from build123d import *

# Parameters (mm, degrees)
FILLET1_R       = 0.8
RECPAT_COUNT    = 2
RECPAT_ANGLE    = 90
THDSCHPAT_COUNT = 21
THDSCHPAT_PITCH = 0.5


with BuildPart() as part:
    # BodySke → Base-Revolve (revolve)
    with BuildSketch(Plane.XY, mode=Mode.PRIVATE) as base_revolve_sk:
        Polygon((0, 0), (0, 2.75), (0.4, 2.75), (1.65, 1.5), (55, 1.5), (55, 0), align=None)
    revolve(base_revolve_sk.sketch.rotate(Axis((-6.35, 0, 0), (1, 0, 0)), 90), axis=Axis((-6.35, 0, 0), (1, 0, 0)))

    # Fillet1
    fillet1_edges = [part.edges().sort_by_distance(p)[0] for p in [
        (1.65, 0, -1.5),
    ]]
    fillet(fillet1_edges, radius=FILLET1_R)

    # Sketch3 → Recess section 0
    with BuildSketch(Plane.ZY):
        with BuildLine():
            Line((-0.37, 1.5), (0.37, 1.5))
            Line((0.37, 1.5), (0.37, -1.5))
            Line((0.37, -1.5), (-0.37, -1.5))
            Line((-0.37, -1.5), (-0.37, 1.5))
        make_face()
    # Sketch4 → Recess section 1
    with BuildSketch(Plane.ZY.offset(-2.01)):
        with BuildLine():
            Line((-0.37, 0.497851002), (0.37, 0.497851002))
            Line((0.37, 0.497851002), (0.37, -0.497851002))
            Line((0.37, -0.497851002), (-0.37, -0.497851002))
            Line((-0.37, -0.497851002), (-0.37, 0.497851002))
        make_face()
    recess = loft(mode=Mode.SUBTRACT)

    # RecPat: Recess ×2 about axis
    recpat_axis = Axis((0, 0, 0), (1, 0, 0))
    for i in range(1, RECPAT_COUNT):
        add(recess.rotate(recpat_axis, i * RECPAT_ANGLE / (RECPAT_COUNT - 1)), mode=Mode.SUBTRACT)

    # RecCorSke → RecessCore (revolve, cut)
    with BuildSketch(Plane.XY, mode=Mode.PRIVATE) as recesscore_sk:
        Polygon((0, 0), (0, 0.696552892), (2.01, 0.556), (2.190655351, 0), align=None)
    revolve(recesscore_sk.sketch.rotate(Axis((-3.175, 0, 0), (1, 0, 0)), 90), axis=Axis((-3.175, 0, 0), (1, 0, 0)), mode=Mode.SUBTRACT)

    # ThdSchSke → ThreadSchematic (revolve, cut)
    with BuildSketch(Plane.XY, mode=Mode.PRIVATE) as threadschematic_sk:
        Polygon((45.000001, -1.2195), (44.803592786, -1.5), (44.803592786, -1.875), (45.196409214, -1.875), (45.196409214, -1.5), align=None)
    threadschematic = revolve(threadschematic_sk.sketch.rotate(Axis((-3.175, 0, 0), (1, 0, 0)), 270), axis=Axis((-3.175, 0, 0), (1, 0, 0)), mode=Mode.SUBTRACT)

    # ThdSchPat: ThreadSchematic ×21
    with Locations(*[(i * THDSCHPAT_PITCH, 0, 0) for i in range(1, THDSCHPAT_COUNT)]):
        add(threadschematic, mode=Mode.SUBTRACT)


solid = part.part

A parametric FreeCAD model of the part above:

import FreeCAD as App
import Part
import Sketcher
from FreeCAD import Vector
Q = App.Units.Quantity


def edges_at(feature, points):
    """Names of the edges that pass closest to the given points."""
    edges = feature.Shape.Edges
    near = lambda p: min(range(len(edges)), key=lambda i: edges[i].distToShape(Part.Vertex(*p))[0])
    return sorted({f"Edge{near(p) + 1}" for p in points})

doc = App.newDocument("Part")
params = doc.addObject("Spreadsheet::Sheet", "Params")
for row, (alias, value) in enumerate([
    ("sketch1_width", "55 mm"),
    ("sketch1_width2", "0.4 mm"),
    ("sketch1_height", "1.5 mm"),
    ("sketch1_width3", "53.35 mm"),
    ("revolution_angle", "360 deg"),
    ("fillet_radius", "0.8 mm"),
    ("sketch2_width", "3 mm"),
    ("sketch2_height", "0.74 mm"),
    ("sketch3_height", "0.74 mm"),
    ("groove_angle", "360 deg"),
    ("groove2_angle", "360 deg"),
    ("linearpattern_pitch", "0.5 mm"),
], start=1):
    params.set(f"A{row}", alias)
    params.set(f"B{row}", "=" + value)
    params.setAlias(f"B{row}", alias)

body = doc.addObject("PartDesign::Body", "Body")

sketch1 = doc.addObject("Sketcher::SketchObject", "Sketch")
body.addObject(sketch1)
sketch1.AttachmentSupport = (doc.XY_Plane, [""])
sketch1.MapMode = "FlatFace"
sketch1.addGeometry([
    Part.LineSegment(Vector(0, 2.75, 0), Vector(0, 0, 0)),
    Part.LineSegment(Vector(0, 0, 0), Vector(55, 0, 0)),
    Part.LineSegment(Vector(55, 0, 0), Vector(55, 1.5, 0)),
    Part.LineSegment(Vector(55, 1.5, 0), Vector(1.65, 1.5, 0)),
    Part.LineSegment(Vector(1.65, 1.5, 0), Vector(0.4, 2.75, 0)),
    Part.LineSegment(Vector(0.4, 2.75, 0), Vector(0, 2.75, 0)),
], False)
sketch1.addConstraint([
    Sketcher.Constraint("Coincident", 0, 2, 1, 1),
    Sketcher.Constraint("Coincident", 1, 2, 2, 1),
    Sketcher.Constraint("Coincident", 2, 2, 3, 1),
    Sketcher.Constraint("Coincident", 3, 2, 4, 1),
    Sketcher.Constraint("Coincident", 4, 2, 5, 1),
    Sketcher.Constraint("Coincident", 5, 2, 0, 1),
    Sketcher.Constraint("Vertical", 0),
    Sketcher.Constraint("Horizontal", 1),
    Sketcher.Constraint("Vertical", 2),
    Sketcher.Constraint("Horizontal", 3),
    Sketcher.Constraint("Horizontal", 5),
    Sketcher.Constraint("Coincident", 0, 2, -1, 1),
    Sketcher.Constraint("DistanceX", 1, 1, 1, 2, 55.0),
    Sketcher.Constraint("Angle", 4, Q("135 deg")),
    Sketcher.Constraint("DistanceX", 5, 2, 5, 1, 0.4),
    Sketcher.Constraint("DistanceY", 2, 1, 2, 2, 1.5),
    Sketcher.Constraint("DistanceX", 3, 2, 3, 1, 53.35),
])
sketch1.setExpression("Constraints[12]", "Params.sketch1_width")
sketch1.setExpression("Constraints[14]", "Params.sketch1_width2")
sketch1.setExpression("Constraints[15]", "Params.sketch1_height")
sketch1.setExpression("Constraints[16]", "Params.sketch1_width3")
revolution = doc.addObject("PartDesign::Revolution", "Revolution")
body.addObject(revolution)
revolution.Profile = sketch1
revolution.ReferenceAxis = (sketch1, ["H_Axis"])
revolution.setExpression("Angle", "Params.revolution_angle")
doc.recompute()

fillet = doc.addObject("PartDesign::Fillet", "Fillet")
body.addObject(fillet)
fillet.Base = (revolution, edges_at(revolution, [(1.65, 0, -1.5)]))
fillet.setExpression("Radius", "Params.fillet_radius")

sketch2 = doc.addObject("Sketcher::SketchObject", "Sketch001")
body.addObject(sketch2)
sketch2.AttachmentSupport = (doc.YZ_Plane, [""])
sketch2.MapMode = "FlatFace"
sketch2.addGeometry([
    Part.LineSegment(Vector(1.5, 0.4, 0), Vector(1.5, -0.4, 0)),
    Part.LineSegment(Vector(1.5, -0.4, 0), Vector(-1.5, -0.4, 0)),
    Part.LineSegment(Vector(-1.5, -0.4, 0), Vector(-1.5, 0.4, 0)),
    Part.LineSegment(Vector(-1.5, 0.4, 0), Vector(1.5, 0.4, 0)),
], False)
sketch2.addConstraint([
    Sketcher.Constraint("Coincident", 0, 2, 1, 1),
    Sketcher.Constraint("Coincident", 1, 2, 2, 1),
    Sketcher.Constraint("Coincident", 2, 2, 3, 1),
    Sketcher.Constraint("Coincident", 3, 2, 0, 1),
    Sketcher.Constraint("Vertical", 0),
    Sketcher.Constraint("Horizontal", 1),
    Sketcher.Constraint("Vertical", 2),
    Sketcher.Constraint("Horizontal", 3),
    Sketcher.Constraint("Symmetric", 0, 2, 2, 2, -1, 1),
    Sketcher.Constraint("DistanceX", 1, 2, 1, 1, 3.0),
    Sketcher.Constraint("DistanceY", 0, 2, 0, 1, 0.74),
])
sketch2.setExpression("Constraints[9]", "Params.sketch2_width")
sketch2.setExpression("Constraints[10]", "Params.sketch2_height")

sketch3 = doc.addObject("Sketcher::SketchObject", "Sketch002")
body.addObject(sketch3)
sketch3.AttachmentSupport = (doc.YZ_Plane, [""])
sketch3.MapMode = "FlatFace"
sketch3.AttachmentOffset = App.Placement(Vector(0, 0, 2.01), App.Rotation())
sketch3.addGeometry([
    Part.LineSegment(Vector(0.5, 0.4, 0), Vector(0.5, -0.4, 0)),
    Part.LineSegment(Vector(0.5, -0.4, 0), Vector(-0.5, -0.4, 0)),
    Part.LineSegment(Vector(-0.5, -0.4, 0), Vector(-0.5, 0.4, 0)),
    Part.LineSegment(Vector(-0.5, 0.4, 0), Vector(0.5, 0.4, 0)),
], False)
sketch3.addConstraint([
    Sketcher.Constraint("Coincident", 0, 2, 1, 1),
    Sketcher.Constraint("Coincident", 1, 2, 2, 1),
    Sketcher.Constraint("Coincident", 2, 2, 3, 1),
    Sketcher.Constraint("Coincident", 3, 2, 0, 1),
    Sketcher.Constraint("Vertical", 0),
    Sketcher.Constraint("Horizontal", 1),
    Sketcher.Constraint("Vertical", 2),
    Sketcher.Constraint("Horizontal", 3),
    Sketcher.Constraint("Symmetric", 0, 2, 2, 2, -1, 1),
    Sketcher.Constraint("DistanceY", 0, 2, 0, 1, 0.74),
    Sketcher.Constraint("DistanceX", 1, 2, 1, 1, 0.995702),
])
sketch3.setExpression("Constraints[9]", "Params.sketch3_height")

subtractiveloft = doc.addObject("PartDesign::SubtractiveLoft", "SubtractiveLoft")
body.addObject(subtractiveloft)
subtractiveloft.Profile = sketch2
subtractiveloft.Sections = [sketch3]
doc.recompute()

polarpattern = doc.addObject("PartDesign::PolarPattern", "PolarPattern")
body.addObject(polarpattern)
polarpattern.Originals = [subtractiveloft]
polarpattern.Axis = (doc.X_Axis, [""])
polarpattern.Angle = 90
polarpattern.Occurrences = 2
body.Tip = polarpattern

sketch4 = doc.addObject("Sketcher::SketchObject", "Sketch003")
body.addObject(sketch4)
sketch4.AttachmentSupport = (doc.XY_Plane, [""])
sketch4.MapMode = "FlatFace"
sketch4.addGeometry([
    Part.LineSegment(Vector(0, 0.7, 0), Vector(0, 0, 0)),
    Part.LineSegment(Vector(0, 0, 0), Vector(2.2, 0, 0)),
    Part.LineSegment(Vector(2.2, 0, 0), Vector(2, 0.6, 0)),
    Part.LineSegment(Vector(2, 0.6, 0), Vector(0, 0.7, 0)),
], False)
sketch4.addConstraint([
    Sketcher.Constraint("Coincident", 0, 2, 1, 1),
    Sketcher.Constraint("Coincident", 1, 2, 2, 1),
    Sketcher.Constraint("Coincident", 2, 2, 3, 1),
    Sketcher.Constraint("Coincident", 3, 2, 0, 1),
    Sketcher.Constraint("Vertical", 0),
    Sketcher.Constraint("Horizontal", 1),
    Sketcher.Constraint("Coincident", 0, 2, -1, 1),
    Sketcher.Constraint("Angle", 2, Q("108 deg")),
    Sketcher.Constraint("Angle", 3, Q("176 deg")),
    Sketcher.Constraint("DistanceX", -1, 1, 2, 2, 2.01),
    Sketcher.Constraint("DistanceY", -1, 1, 2, 2, 0.556),
])
groove = doc.addObject("PartDesign::Groove", "Groove")
body.addObject(groove)
groove.Profile = sketch4
groove.ReferenceAxis = (sketch4, ["H_Axis"])
groove.setExpression("Angle", "Params.groove_angle")

sketch5 = doc.addObject("Sketcher::SketchObject", "Sketch004")
body.addObject(sketch5)
sketch5.AttachmentSupport = (doc.XY_Plane, [""])
sketch5.MapMode = "FlatFace"
sketch5.addGeometry([
    Part.LineSegment(Vector(45, -1.22, 0), Vector(44.8, -1.5, 0)),
    Part.LineSegment(Vector(44.8, -1.5, 0), Vector(44.8, -1.88, 0)),
    Part.LineSegment(Vector(44.8, -1.88, 0), Vector(45.2, -1.88, 0)),
    Part.LineSegment(Vector(45.2, -1.88, 0), Vector(45.2, -1.5, 0)),
    Part.LineSegment(Vector(45.2, -1.5, 0), Vector(45, -1.22, 0)),
], False)
sketch5.addConstraint([
    Sketcher.Constraint("Coincident", 0, 2, 1, 1),
    Sketcher.Constraint("Coincident", 1, 2, 2, 1),
    Sketcher.Constraint("Coincident", 2, 2, 3, 1),
    Sketcher.Constraint("Coincident", 3, 2, 4, 1),
    Sketcher.Constraint("Coincident", 4, 2, 0, 1),
    Sketcher.Constraint("Vertical", 1),
    Sketcher.Constraint("Horizontal", 2),
    Sketcher.Constraint("Vertical", 3),
    Sketcher.Constraint("Horizontal", 0, 2, 3, 2),
    Sketcher.Constraint("Equal", 0, 4),
    Sketcher.Constraint("Angle", 0, Q("-125 deg")),
    Sketcher.Constraint("DistanceX", -1, 1, 4, 2, 45.000001),
    Sketcher.Constraint("DistanceY", 0, 2, -1, 1, 1.5),
    Sketcher.Constraint("DistanceY", 1, 2, 1, 1, 0.375),
    Sketcher.Constraint("DistanceY", 4, 2, -1, 1, 1.2195),
])
groove2 = doc.addObject("PartDesign::Groove", "Groove001")
body.addObject(groove2)
groove2.Profile = sketch5
groove2.ReferenceAxis = (sketch5, ["H_Axis"])
groove2.setExpression("Angle", "Params.groove2_angle")
doc.recompute()

linearpattern = doc.addObject("PartDesign::LinearPattern", "LinearPattern")
body.addObject(linearpattern)
linearpattern.Originals = [groove2]
linearpattern.Direction = (doc.X_Axis, [""])
linearpattern.Mode = "offset"
linearpattern.setExpression("Offset", "Params.linearpattern_pitch")
linearpattern.Occurrences = 21
body.Tip = linearpattern

doc.recompute()
